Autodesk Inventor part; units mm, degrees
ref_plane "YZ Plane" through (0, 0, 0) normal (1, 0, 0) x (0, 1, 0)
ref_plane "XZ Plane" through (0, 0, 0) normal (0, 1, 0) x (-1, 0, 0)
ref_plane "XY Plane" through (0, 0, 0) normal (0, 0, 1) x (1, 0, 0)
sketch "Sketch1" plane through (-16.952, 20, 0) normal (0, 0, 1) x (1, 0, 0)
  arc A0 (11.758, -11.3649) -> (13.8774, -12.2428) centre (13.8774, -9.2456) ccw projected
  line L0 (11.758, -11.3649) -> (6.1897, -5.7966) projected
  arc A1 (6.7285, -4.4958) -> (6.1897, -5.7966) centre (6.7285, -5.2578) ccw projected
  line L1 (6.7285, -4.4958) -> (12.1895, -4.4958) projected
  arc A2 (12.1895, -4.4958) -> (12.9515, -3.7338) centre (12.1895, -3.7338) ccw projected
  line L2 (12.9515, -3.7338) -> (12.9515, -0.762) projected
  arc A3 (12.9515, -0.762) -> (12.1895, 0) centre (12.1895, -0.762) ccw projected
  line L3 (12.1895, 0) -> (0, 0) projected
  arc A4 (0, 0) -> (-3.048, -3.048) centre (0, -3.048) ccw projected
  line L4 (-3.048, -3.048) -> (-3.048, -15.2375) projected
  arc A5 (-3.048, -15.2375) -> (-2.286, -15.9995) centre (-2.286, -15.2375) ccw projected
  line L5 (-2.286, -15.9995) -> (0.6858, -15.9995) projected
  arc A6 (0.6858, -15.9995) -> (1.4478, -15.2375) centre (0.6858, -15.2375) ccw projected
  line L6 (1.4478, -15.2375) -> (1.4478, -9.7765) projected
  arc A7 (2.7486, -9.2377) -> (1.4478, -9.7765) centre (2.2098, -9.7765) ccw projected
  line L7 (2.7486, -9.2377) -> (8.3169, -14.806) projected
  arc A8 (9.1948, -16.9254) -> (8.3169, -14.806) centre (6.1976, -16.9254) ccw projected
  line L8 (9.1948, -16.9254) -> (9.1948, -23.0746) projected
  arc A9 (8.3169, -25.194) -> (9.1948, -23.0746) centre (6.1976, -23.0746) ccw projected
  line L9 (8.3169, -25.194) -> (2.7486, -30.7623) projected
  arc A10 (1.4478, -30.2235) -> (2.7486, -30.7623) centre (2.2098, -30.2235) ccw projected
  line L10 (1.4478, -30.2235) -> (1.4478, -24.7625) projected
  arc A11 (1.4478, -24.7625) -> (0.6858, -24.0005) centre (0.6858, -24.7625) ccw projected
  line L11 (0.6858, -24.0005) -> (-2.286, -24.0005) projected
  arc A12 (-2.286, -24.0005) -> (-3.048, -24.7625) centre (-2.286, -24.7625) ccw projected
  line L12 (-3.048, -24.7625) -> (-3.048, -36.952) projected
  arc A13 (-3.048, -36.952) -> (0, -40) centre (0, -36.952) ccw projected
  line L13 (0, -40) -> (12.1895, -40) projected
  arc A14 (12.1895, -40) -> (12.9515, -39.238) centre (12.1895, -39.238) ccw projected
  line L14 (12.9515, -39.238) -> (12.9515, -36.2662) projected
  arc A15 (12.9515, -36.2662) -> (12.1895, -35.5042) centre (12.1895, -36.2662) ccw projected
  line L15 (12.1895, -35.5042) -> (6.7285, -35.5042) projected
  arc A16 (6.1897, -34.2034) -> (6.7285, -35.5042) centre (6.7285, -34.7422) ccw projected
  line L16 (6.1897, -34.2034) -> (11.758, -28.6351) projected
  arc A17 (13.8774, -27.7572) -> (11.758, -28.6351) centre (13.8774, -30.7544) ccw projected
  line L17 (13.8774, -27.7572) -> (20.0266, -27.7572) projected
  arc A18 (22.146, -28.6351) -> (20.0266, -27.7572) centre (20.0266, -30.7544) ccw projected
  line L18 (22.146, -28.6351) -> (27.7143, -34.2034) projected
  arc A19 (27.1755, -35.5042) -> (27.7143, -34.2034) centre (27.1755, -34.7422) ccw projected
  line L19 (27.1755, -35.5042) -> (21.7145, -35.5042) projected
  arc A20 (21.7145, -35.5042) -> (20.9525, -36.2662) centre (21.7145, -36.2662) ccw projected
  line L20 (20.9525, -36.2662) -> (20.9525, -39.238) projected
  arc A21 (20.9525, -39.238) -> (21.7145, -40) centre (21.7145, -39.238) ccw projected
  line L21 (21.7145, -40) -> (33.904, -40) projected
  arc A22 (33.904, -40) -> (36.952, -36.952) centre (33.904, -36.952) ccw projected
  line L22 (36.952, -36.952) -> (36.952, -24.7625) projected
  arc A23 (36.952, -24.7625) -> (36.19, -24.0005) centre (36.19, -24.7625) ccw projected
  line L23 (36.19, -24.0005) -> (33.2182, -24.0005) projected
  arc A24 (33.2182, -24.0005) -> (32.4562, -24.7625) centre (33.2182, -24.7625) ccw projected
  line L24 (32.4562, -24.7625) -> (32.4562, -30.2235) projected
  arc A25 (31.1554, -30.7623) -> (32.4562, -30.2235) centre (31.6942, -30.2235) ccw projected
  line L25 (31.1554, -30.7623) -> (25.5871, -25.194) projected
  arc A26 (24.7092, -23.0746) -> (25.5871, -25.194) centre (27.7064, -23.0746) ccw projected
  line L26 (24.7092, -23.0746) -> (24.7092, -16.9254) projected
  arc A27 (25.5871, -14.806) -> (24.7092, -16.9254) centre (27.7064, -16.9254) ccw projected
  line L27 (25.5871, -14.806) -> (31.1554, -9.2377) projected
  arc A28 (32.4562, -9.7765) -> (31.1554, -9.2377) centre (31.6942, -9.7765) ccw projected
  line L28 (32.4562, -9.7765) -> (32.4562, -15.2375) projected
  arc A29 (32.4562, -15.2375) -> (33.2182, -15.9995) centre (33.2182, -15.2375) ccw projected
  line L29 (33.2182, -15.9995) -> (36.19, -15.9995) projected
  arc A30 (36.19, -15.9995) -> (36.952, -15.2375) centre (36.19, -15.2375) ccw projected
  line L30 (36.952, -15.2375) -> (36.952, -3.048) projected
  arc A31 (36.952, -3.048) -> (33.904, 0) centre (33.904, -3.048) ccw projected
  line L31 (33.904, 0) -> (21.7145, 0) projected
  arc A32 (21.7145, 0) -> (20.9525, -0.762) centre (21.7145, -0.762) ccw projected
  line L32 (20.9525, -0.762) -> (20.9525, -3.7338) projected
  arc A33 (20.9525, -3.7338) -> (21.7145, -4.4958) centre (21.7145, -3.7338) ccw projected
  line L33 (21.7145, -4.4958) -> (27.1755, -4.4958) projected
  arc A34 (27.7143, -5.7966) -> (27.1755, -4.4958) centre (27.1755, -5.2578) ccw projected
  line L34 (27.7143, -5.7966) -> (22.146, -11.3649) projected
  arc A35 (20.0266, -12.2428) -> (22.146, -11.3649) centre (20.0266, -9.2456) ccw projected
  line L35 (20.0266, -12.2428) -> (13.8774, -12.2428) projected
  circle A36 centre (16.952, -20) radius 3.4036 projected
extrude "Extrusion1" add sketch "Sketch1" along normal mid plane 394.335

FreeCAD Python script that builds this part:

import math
import FreeCAD as App
import Part
import Sketcher
from FreeCAD import Vector
Q = App.Units.Quantity

doc = App.newDocument("Part")
body = doc.addObject("PartDesign::Body", "Body")

# Sketch on XY plane
sketch1 = body.newObject("Sketcher::SketchObject", "Sketch")
sketch1.AttachmentSupport = (doc.getObject("XY_Plane"), [""])
sketch1.MapMode = "FlatFace"
sketch1.addGeometry([
    Part.ArcOfCircle(Part.Circle(Vector(-3.1, 10.8, 0), Vector(0, 0, 1), 3), math.radians(-135), math.radians(-90)),  # 0
    Part.LineSegment(Vector(-5.2, 8.6, 0), Vector(-10.8, 14.2, 0)),  # 1
    Part.ArcOfCircle(Part.Circle(Vector(-10.2, 14.7, 0), Vector(0, 0, 1), 0.8), math.radians(90), math.radians(225)),  # 2
    Part.LineSegment(Vector(-10.2, 15.5, 0), Vector(-4.8, 15.5, 0)),  # 3
    Part.ArcOfCircle(Part.Circle(Vector(-4.8, 16.3, 0), Vector(0, 0, 1), 0.8), math.radians(-90), math.radians(0)),  # 4
    Part.LineSegment(Vector(-4, 16.3, 0), Vector(-4, 19.2, 0)),  # 5
    Part.ArcOfCircle(Part.Circle(Vector(-4.8, 19.2, 0), Vector(0, 0, 1), 0.8), math.radians(0), math.radians(90)),  # 6
    Part.LineSegment(Vector(-4.8, 20, 0), Vector(-17, 20, 0)),  # 7
    Part.ArcOfCircle(Part.Circle(Vector(-17, 17, 0), Vector(0, 0, 1), 3), math.radians(90), math.radians(180)),  # 8
    Part.LineSegment(Vector(-20, 17, 0), Vector(-20, 4.8, 0)),  # 9
    Part.ArcOfCircle(Part.Circle(Vector(-19.2, 4.8, 0), Vector(0, 0, 1), 0.8), math.radians(180), math.radians(270)),  # 10
    Part.LineSegment(Vector(-19.2, 4, 0), Vector(-16.3, 4, 0)),  # 11
    Part.ArcOfCircle(Part.Circle(Vector(-16.3, 4.8, 0), Vector(0, 0, 1), 0.8), math.radians(-90), math.radians(0)),  # 12
    Part.LineSegment(Vector(-15.5, 4.8, 0), Vector(-15.5, 10.2, 0)),  # 13
    Part.ArcOfCircle(Part.Circle(Vector(-14.7, 10.2, 0), Vector(0, 0, 1), 0.8), math.radians(45), math.radians(180)),  # 14
    Part.LineSegment(Vector(-14.2, 10.8, 0), Vector(-8.6, 5.2, 0)),  # 15
    Part.ArcOfCircle(Part.Circle(Vector(-10.8, 3.1, 0), Vector(0, 0, 1), 3), math.radians(0), math.radians(45)),  # 16
    Part.LineSegment(Vector(-7.8, 3.1, 0), Vector(-7.8, -3.1, 0)),  # 17
    Part.ArcOfCircle(Part.Circle(Vector(-10.8, -3.1, 0), Vector(0, 0, 1), 3), math.radians(-45), math.radians(0)),  # 18
    Part.LineSegment(Vector(-8.6, -5.2, 0), Vector(-14.2, -10.8, 0)),  # 19
    Part.ArcOfCircle(Part.Circle(Vector(-14.7, -10.2, 0), Vector(0, 0, 1), 0.8), math.radians(180), math.radians(315)),  # 20
    Part.LineSegment(Vector(-15.5, -10.2, 0), Vector(-15.5, -4.8, 0)),  # 21
    Part.ArcOfCircle(Part.Circle(Vector(-16.3, -4.8, 0), Vector(0, 0, 1), 0.8), math.radians(0), math.radians(90)),  # 22
    Part.LineSegment(Vector(-16.3, -4, 0), Vector(-19.2, -4, 0)),  # 23
    Part.ArcOfCircle(Part.Circle(Vector(-19.2, -4.8, 0), Vector(0, 0, 1), 0.8), math.radians(90), math.radians(180)),  # 24
    Part.LineSegment(Vector(-20, -4.8, 0), Vector(-20, -17, 0)),  # 25
    Part.ArcOfCircle(Part.Circle(Vector(-17, -17, 0), Vector(0, 0, 1), 3), math.radians(180), math.radians(270)),  # 26
    Part.LineSegment(Vector(-17, -20, 0), Vector(-4.8, -20, 0)),  # 27
    Part.ArcOfCircle(Part.Circle(Vector(-4.8, -19.2, 0), Vector(0, 0, 1), 0.8), math.radians(-90), math.radians(0)),  # 28
    Part.LineSegment(Vector(-4, -19.2, 0), Vector(-4, -16.3, 0)),  # 29
    Part.ArcOfCircle(Part.Circle(Vector(-4.8, -16.3, 0), Vector(0, 0, 1), 0.8), math.radians(0), math.radians(90)),  # 30
    Part.LineSegment(Vector(-4.8, -15.5, 0), Vector(-10.2, -15.5, 0)),  # 31
    Part.ArcOfCircle(Part.Circle(Vector(-10.2, -14.7, 0), Vector(0, 0, 1), 0.8), math.radians(135), math.radians(270)),  # 32
    Part.LineSegment(Vector(-10.8, -14.2, 0), Vector(-5.2, -8.6, 0)),  # 33
    Part.ArcOfCircle(Part.Circle(Vector(-3.1, -10.8, 0), Vector(0, 0, 1), 3), math.radians(90), math.radians(135)),  # 34
    Part.LineSegment(Vector(-3.1, -7.8, 0), Vector(3.1, -7.8, 0)),  # 35
    Part.ArcOfCircle(Part.Circle(Vector(3.1, -10.8, 0), Vector(0, 0, 1), 3), math.radians(45), math.radians(90)),  # 36
    Part.LineSegment(Vector(5.2, -8.6, 0), Vector(10.8, -14.2, 0)),  # 37
    Part.ArcOfCircle(Part.Circle(Vector(10.2, -14.7, 0), Vector(0, 0, 1), 0.8), math.radians(-90), math.radians(45)),  # 38
    Part.LineSegment(Vector(10.2, -15.5, 0), Vector(4.8, -15.5, 0)),  # 39
    Part.ArcOfCircle(Part.Circle(Vector(4.8, -16.3, 0), Vector(0, 0, 1), 0.8), math.radians(90), math.radians(180)),  # 40
    Part.LineSegment(Vector(4, -16.3, 0), Vector(4, -19.2, 0)),  # 41
    Part.ArcOfCircle(Part.Circle(Vector(4.8, -19.2, 0), Vector(0, 0, 1), 0.8), math.radians(180), math.radians(270)),  # 42
    Part.LineSegment(Vector(4.8, -20, 0), Vector(17, -20, 0)),  # 43
    Part.ArcOfCircle(Part.Circle(Vector(17, -17, 0), Vector(0, 0, 1), 3), math.radians(-90), math.radians(0)),  # 44
    Part.LineSegment(Vector(20, -17, 0), Vector(20, -4.8, 0)),  # 45
    Part.ArcOfCircle(Part.Circle(Vector(19.2, -4.8, 0), Vector(0, 0, 1), 0.8), math.radians(0), math.radians(90)),  # 46
    Part.LineSegment(Vector(19.2, -4, 0), Vector(16.3, -4, 0)),  # 47
    Part.ArcOfCircle(Part.Circle(Vector(16.3, -4.8, 0), Vector(0, 0, 1), 0.8), math.radians(90), math.radians(180)),  # 48
    Part.LineSegment(Vector(15.5, -4.8, 0), Vector(15.5, -10.2, 0)),  # 49
    Part.ArcOfCircle(Part.Circle(Vector(14.7, -10.2, 0), Vector(0, 0, 1), 0.8), math.radians(-135), math.radians(0)),  # 50
    Part.LineSegment(Vector(14.2, -10.8, 0), Vector(8.6, -5.2, 0)),  # 51
    Part.ArcOfCircle(Part.Circle(Vector(10.8, -3.1, 0), Vector(0, 0, 1), 3), math.radians(180), math.radians(225)),  # 52
    Part.LineSegment(Vector(7.8, -3.1, 0), Vector(7.8, 3.1, 0)),  # 53
    Part.ArcOfCircle(Part.Circle(Vector(10.8, 3.1, 0), Vector(0, 0, 1), 3), math.radians(135), math.radians(180)),  # 54
    Part.LineSegment(Vector(8.6, 5.2, 0), Vector(14.2, 10.8, 0)),  # 55
    Part.ArcOfCircle(Part.Circle(Vector(14.7, 10.2, 0), Vector(0, 0, 1), 0.8), math.radians(0), math.radians(135)),  # 56
    Part.LineSegment(Vector(15.5, 10.2, 0), Vector(15.5, 4.8, 0)),  # 57
    Part.ArcOfCircle(Part.Circle(Vector(16.3, 4.8, 0), Vector(0, 0, 1), 0.8), math.radians(180), math.radians(270)),  # 58
    Part.LineSegment(Vector(16.3, 4, 0), Vector(19.2, 4, 0)),  # 59
    Part.ArcOfCircle(Part.Circle(Vector(19.2, 4.8, 0), Vector(0, 0, 1), 0.8), math.radians(-90), math.radians(0)),  # 60
    Part.LineSegment(Vector(20, 4.8, 0), Vector(20, 17, 0)),  # 61
    Part.ArcOfCircle(Part.Circle(Vector(17, 17, 0), Vector(0, 0, 1), 3), math.radians(0), math.radians(90)),  # 62
    Part.LineSegment(Vector(17, 20, 0), Vector(4.8, 20, 0)),  # 63
    Part.ArcOfCircle(Part.Circle(Vector(4.8, 19.2, 0), Vector(0, 0, 1), 0.8), math.radians(90), math.radians(180)),  # 64
    Part.LineSegment(Vector(4, 19.2, 0), Vector(4, 16.3, 0)),  # 65
    Part.ArcOfCircle(Part.Circle(Vector(4.8, 16.3, 0), Vector(0, 0, 1), 0.8), math.radians(180), math.radians(270)),  # 66
    Part.LineSegment(Vector(4.8, 15.5, 0), Vector(10.2, 15.5, 0)),  # 67
    Part.ArcOfCircle(Part.Circle(Vector(10.2, 14.7, 0), Vector(0, 0, 1), 0.8), math.radians(-45), math.radians(90)),  # 68
    Part.LineSegment(Vector(10.8, 14.2, 0), Vector(5.2, 8.6, 0)),  # 69
    Part.ArcOfCircle(Part.Circle(Vector(3.1, 10.8, 0), Vector(0, 0, 1), 3), math.radians(-90), math.radians(-45)),  # 70
    Part.LineSegment(Vector(3.1, 7.8, 0), Vector(-3.1, 7.8, 0)),  # 71
    Part.Circle(Vector(0, 0, 0), Vector(0, 0, 1), 3.4),  # 72
], False)
sketch1.addConstraint([
    Sketcher.Constraint("Tangent", 0, 1, 1, 1),
    Sketcher.Constraint("Tangent", 1, 2, 2, 2),
    Sketcher.Constraint("Tangent", 2, 1, 3, 1),
    Sketcher.Constraint("Tangent", 3, 2, 4, 1),
    Sketcher.Constraint("Tangent", 4, 2, 5, 1),
    Sketcher.Constraint("Tangent", 5, 2, 6, 1),
    Sketcher.Constraint("Tangent", 6, 2, 7, 1),
    Sketcher.Constraint("Tangent", 7, 2, 8, 1),
    Sketcher.Constraint("Tangent", 8, 2, 9, 1),
    Sketcher.Constraint("Tangent", 9, 2, 10, 1),
    Sketcher.Constraint("Tangent", 10, 2, 11, 1),
    Sketcher.Constraint("Tangent", 11, 2, 12, 1),
    Sketcher.Constraint("Tangent", 12, 2, 13, 1),
    Sketcher.Constraint("Tangent", 13, 2, 14, 2),
    Sketcher.Constraint("Tangent", 14, 1, 15, 1),
    Sketcher.Constraint("Tangent", 15, 2, 16, 2),
    Sketcher.Constraint("Tangent", 16, 1, 17, 1),
    Sketcher.Constraint("Tangent", 17, 2, 18, 2),
    Sketcher.Constraint("Tangent", 18, 1, 19, 1),
    Sketcher.Constraint("Tangent", 19, 2, 20, 2),
    Sketcher.Constraint("Tangent", 20, 1, 21, 1),
    Sketcher.Constraint("Tangent", 21, 2, 22, 1),
    Sketcher.Constraint("Tangent", 22, 2, 23, 1),
    Sketcher.Constraint("Tangent", 23, 2, 24, 1),
    Sketcher.Constraint("Tangent", 24, 2, 25, 1),
    Sketcher.Constraint("Tangent", 25, 2, 26, 1),
    Sketcher.Constraint("Tangent", 26, 2, 27, 1),
    Sketcher.Constraint("Tangent", 27, 2, 28, 1),
    Sketcher.Constraint("Tangent", 28, 2, 29, 1),
    Sketcher.Constraint("Tangent", 29, 2, 30, 1),
    Sketcher.Constraint("Tangent", 30, 2, 31, 1),
    Sketcher.Constraint("Tangent", 31, 2, 32, 2),
    Sketcher.Constraint("Tangent", 32, 1, 33, 1),
    Sketcher.Constraint("Tangent", 33, 2, 34, 2),
    Sketcher.Constraint("Tangent", 34, 1, 35, 1),
    Sketcher.Constraint("Tangent", 35, 2, 36, 2),
    Sketcher.Constraint("Tangent", 36, 1, 37, 1),
    Sketcher.Constraint("Tangent", 37, 2, 38, 2),
    Sketcher.Constraint("Tangent", 38, 1, 39, 1),
    Sketcher.Constraint("Tangent", 39, 2, 40, 1),
    Sketcher.Constraint("Tangent", 40, 2, 41, 1),
    Sketcher.Constraint("Tangent", 41, 2, 42, 1),
    Sketcher.Constraint("Tangent", 42, 2, 43, 1),
    Sketcher.Constraint("Tangent", 43, 2, 44, 1),
    Sketcher.Constraint("Tangent", 44, 2, 45, 1),
    Sketcher.Constraint("Tangent", 45, 2, 46, 1),
    Sketcher.Constraint("Tangent", 46, 2, 47, 1),
    Sketcher.Constraint("Tangent", 47, 2, 48, 1),
    Sketcher.Constraint("Tangent", 48, 2, 49, 1),
    Sketcher.Constraint("Tangent", 49, 2, 50, 2),
    Sketcher.Constraint("Tangent", 50, 1, 51, 1),
    Sketcher.Constraint("Tangent", 51, 2, 52, 2),
    Sketcher.Constraint("Tangent", 52, 1, 53, 1),
    Sketcher.Constraint("Tangent", 53, 2, 54, 2),
    Sketcher.Constraint("Tangent", 54, 1, 55, 1),
    Sketcher.Constraint("Tangent", 55, 2, 56, 2),
    Sketcher.Constraint("Tangent", 56, 1, 57, 1),
    Sketcher.Constraint("Tangent", 57, 2, 58, 1),
    Sketcher.Constraint("Tangent", 58, 2, 59, 1),
    Sketcher.Constraint("Tangent", 59, 2, 60, 1),
    Sketcher.Constraint("Tangent", 60, 2, 61, 1),
    Sketcher.Constraint("Tangent", 61, 2, 62, 1),
    Sketcher.Constraint("Tangent", 62, 2, 63, 1),
    Sketcher.Constraint("Tangent", 63, 2, 64, 1),
    Sketcher.Constraint("Tangent", 64, 2, 65, 1),
    Sketcher.Constraint("Tangent", 65, 2, 66, 1),
    Sketcher.Constraint("Tangent", 66, 2, 67, 1),
    Sketcher.Constraint("Tangent", 67, 2, 68, 2),
    Sketcher.Constraint("Tangent", 68, 1, 69, 1),
    Sketcher.Constraint("Tangent", 69, 2, 70, 2),
    Sketcher.Constraint("Tangent", 70, 1, 71, 1),
    Sketcher.Constraint("Tangent", 71, 2, 0, 2),
    Sketcher.Constraint("Horizontal", 3),
    Sketcher.Constraint("Vertical", 5),
    Sketcher.Constraint("Horizontal", 7),
    Sketcher.Constraint("Vertical", 9),
    Sketcher.Constraint("Horizontal", 11),
    Sketcher.Constraint("Vertical", 13),
    Sketcher.Constraint("Vertical", 17),
    Sketcher.Constraint("Vertical", 21),
    Sketcher.Constraint("Horizontal", 23),
    Sketcher.Constraint("Vertical", 25),
    Sketcher.Constraint("Horizontal", 27),
    Sketcher.Constraint("Vertical", 29),
    Sketcher.Constraint("Horizontal", 31),
    Sketcher.Constraint("Horizontal", 35),
    Sketcher.Constraint("Horizontal", 39),
    Sketcher.Constraint("Vertical", 41),
    Sketcher.Constraint("Horizontal", 43),
    Sketcher.Constraint("Vertical", 45),
    Sketcher.Constraint("Horizontal", 47),
    Sketcher.Constraint("Vertical", 49),
    Sketcher.Constraint("Vertical", 53),
    Sketcher.Constraint("Vertical", 57),
    Sketcher.Constraint("Horizontal", 59),
    Sketcher.Constraint("Vertical", 61),
    Sketcher.Constraint("Horizontal", 63),
    Sketcher.Constraint("Vertical", 65),
    Sketcher.Constraint("Horizontal", 67),
    Sketcher.Constraint("Horizontal", 71),
    Sketcher.Constraint("Coincident", 72, 3, -1, 1),
    Sketcher.Constraint("Equal", 2, 4),
    Sketcher.Constraint("Equal", 4, 6),
    Sketcher.Constraint("Equal", 6, 10),
    Sketcher.Constraint("Equal", 10, 12),
    Sketcher.Constraint("Equal", 12, 14),
    Sketcher.Constraint("Equal", 0, 16),
    Sketcher.Constraint("Equal", 16, 18),
    Sketcher.Constraint("Equal", 14, 20),
    Sketcher.Constraint("Equal", 20, 22),
    Sketcher.Constraint("Equal", 22, 24),
    Sketcher.Constraint("Equal", 8, 26),
    Sketcher.Constraint("Equal", 24, 28),
    Sketcher.Constraint("Equal", 28, 30),
    Sketcher.Constraint("Equal", 30, 32),
    Sketcher.Constraint("Equal", 18, 34),
    Sketcher.Constraint("Equal", 34, 36),
    Sketcher.Constraint("Equal", 32, 38),
    Sketcher.Constraint("Equal", 38, 40),
    Sketcher.Constraint("Equal", 40, 42),
    Sketcher.Constraint("Equal", 26, 44),
    Sketcher.Constraint("Equal", 42, 46),
    Sketcher.Constraint("Equal", 46, 48),
    Sketcher.Constraint("Equal", 48, 50),
    Sketcher.Constraint("Equal", 36, 52),
    Sketcher.Constraint("Equal", 52, 54),
    Sketcher.Constraint("Equal", 50, 56),
    Sketcher.Constraint("Equal", 56, 58),
    Sketcher.Constraint("Equal", 58, 60),
    Sketcher.Constraint("Equal", 44, 62),
    Sketcher.Constraint("Equal", 60, 64),
    Sketcher.Constraint("Equal", 64, 66),
    Sketcher.Constraint("Equal", 66, 68),
    Sketcher.Constraint("Equal", 54, 70),
    Sketcher.Constraint("Symmetric", 0, 3, 36, 3, -1, 1),
    Sketcher.Constraint("Symmetric", 2, 3, 38, 3, -1, 1),
    Sketcher.Constraint("Symmetric", 6, 3, 42, 3, -1, 1),
    Sketcher.Constraint("Symmetric", 10, 3, 46, 3, -1, 1),
    Sketcher.Constraint("Symmetric", 14, 3, 50, 3, -1, 1),
    Sketcher.Constraint("Symmetric", 16, 3, 52, 3, -1, 1),
    Sketcher.Constraint("Symmetric", 20, 3, 56, 3, -1, 1),
    Sketcher.Constraint("Symmetric", 24, 3, 60, 3, -1, 1),
    Sketcher.Constraint("Symmetric", 28, 3, 64, 3, -1, 1),
    Sketcher.Constraint("Symmetric", 32, 3, 68, 3, -1, 1),
    Sketcher.Constraint("Symmetric", 32, 3, 38, 3, -2),
    Sketcher.Constraint("Symmetric", 28, 3, 42, 3, -2),
    Sketcher.Constraint("Symmetric", 24, 3, 46, 3, -2),
    Sketcher.Constraint("Symmetric", 20, 3, 50, 3, -2),
    Sketcher.Constraint("Parallel", 1, 15),
    Sketcher.Constraint("Perpendicular", 15, 19),
    Sketcher.Constraint("Parallel", 19, 33),
    Sketcher.Constraint("Perpendicular", 51, 55),
    Sketcher.Constraint("Parallel", 55, 69),
    Sketcher.Constraint("Horizontal", 18, 3, 52, 3),
    Sketcher.Constraint("Equal", 59, 5),
    Sketcher.Constraint("Equal", 63, 9),
    Sketcher.Constraint("Equal", 67, 13),
    Sketcher.Constraint("Equal", 71, 17),
    Sketcher.Constraint("Equal", 1, 15),
    Sketcher.Constraint("Radius", 2, Q("0.03 in")),
    Sketcher.Constraint("Radius", 8, Q("0.12 in")),
    Sketcher.Constraint("Diameter", 72, Q("0.268 in")),
    Sketcher.Constraint("Radius", 0, Q("0.118 in")),
    Sketcher.Constraint("DistanceX", 3, 1, 3, 2, Q("0.215 in")),
    Sketcher.Constraint("DistanceX", 11, 1, 11, 2, Q("0.117 in")),
    Sketcher.Constraint("DistanceX", 7, 2, 7, 1, Q("0.4799 in")),
    Sketcher.Constraint("DistanceX", 35, 1, 35, 2, Q("0.2421 in")),
    Sketcher.Constraint("DistanceX", 4, 3, -1, 1, Q("0.1875 in")),
])
pad1 = body.newObject("PartDesign::Pad", "Pad")
pad1.Profile = sketch1
pad1.Length = Q("15.525 in")
pad1.Midplane = True

doc.recompute()
